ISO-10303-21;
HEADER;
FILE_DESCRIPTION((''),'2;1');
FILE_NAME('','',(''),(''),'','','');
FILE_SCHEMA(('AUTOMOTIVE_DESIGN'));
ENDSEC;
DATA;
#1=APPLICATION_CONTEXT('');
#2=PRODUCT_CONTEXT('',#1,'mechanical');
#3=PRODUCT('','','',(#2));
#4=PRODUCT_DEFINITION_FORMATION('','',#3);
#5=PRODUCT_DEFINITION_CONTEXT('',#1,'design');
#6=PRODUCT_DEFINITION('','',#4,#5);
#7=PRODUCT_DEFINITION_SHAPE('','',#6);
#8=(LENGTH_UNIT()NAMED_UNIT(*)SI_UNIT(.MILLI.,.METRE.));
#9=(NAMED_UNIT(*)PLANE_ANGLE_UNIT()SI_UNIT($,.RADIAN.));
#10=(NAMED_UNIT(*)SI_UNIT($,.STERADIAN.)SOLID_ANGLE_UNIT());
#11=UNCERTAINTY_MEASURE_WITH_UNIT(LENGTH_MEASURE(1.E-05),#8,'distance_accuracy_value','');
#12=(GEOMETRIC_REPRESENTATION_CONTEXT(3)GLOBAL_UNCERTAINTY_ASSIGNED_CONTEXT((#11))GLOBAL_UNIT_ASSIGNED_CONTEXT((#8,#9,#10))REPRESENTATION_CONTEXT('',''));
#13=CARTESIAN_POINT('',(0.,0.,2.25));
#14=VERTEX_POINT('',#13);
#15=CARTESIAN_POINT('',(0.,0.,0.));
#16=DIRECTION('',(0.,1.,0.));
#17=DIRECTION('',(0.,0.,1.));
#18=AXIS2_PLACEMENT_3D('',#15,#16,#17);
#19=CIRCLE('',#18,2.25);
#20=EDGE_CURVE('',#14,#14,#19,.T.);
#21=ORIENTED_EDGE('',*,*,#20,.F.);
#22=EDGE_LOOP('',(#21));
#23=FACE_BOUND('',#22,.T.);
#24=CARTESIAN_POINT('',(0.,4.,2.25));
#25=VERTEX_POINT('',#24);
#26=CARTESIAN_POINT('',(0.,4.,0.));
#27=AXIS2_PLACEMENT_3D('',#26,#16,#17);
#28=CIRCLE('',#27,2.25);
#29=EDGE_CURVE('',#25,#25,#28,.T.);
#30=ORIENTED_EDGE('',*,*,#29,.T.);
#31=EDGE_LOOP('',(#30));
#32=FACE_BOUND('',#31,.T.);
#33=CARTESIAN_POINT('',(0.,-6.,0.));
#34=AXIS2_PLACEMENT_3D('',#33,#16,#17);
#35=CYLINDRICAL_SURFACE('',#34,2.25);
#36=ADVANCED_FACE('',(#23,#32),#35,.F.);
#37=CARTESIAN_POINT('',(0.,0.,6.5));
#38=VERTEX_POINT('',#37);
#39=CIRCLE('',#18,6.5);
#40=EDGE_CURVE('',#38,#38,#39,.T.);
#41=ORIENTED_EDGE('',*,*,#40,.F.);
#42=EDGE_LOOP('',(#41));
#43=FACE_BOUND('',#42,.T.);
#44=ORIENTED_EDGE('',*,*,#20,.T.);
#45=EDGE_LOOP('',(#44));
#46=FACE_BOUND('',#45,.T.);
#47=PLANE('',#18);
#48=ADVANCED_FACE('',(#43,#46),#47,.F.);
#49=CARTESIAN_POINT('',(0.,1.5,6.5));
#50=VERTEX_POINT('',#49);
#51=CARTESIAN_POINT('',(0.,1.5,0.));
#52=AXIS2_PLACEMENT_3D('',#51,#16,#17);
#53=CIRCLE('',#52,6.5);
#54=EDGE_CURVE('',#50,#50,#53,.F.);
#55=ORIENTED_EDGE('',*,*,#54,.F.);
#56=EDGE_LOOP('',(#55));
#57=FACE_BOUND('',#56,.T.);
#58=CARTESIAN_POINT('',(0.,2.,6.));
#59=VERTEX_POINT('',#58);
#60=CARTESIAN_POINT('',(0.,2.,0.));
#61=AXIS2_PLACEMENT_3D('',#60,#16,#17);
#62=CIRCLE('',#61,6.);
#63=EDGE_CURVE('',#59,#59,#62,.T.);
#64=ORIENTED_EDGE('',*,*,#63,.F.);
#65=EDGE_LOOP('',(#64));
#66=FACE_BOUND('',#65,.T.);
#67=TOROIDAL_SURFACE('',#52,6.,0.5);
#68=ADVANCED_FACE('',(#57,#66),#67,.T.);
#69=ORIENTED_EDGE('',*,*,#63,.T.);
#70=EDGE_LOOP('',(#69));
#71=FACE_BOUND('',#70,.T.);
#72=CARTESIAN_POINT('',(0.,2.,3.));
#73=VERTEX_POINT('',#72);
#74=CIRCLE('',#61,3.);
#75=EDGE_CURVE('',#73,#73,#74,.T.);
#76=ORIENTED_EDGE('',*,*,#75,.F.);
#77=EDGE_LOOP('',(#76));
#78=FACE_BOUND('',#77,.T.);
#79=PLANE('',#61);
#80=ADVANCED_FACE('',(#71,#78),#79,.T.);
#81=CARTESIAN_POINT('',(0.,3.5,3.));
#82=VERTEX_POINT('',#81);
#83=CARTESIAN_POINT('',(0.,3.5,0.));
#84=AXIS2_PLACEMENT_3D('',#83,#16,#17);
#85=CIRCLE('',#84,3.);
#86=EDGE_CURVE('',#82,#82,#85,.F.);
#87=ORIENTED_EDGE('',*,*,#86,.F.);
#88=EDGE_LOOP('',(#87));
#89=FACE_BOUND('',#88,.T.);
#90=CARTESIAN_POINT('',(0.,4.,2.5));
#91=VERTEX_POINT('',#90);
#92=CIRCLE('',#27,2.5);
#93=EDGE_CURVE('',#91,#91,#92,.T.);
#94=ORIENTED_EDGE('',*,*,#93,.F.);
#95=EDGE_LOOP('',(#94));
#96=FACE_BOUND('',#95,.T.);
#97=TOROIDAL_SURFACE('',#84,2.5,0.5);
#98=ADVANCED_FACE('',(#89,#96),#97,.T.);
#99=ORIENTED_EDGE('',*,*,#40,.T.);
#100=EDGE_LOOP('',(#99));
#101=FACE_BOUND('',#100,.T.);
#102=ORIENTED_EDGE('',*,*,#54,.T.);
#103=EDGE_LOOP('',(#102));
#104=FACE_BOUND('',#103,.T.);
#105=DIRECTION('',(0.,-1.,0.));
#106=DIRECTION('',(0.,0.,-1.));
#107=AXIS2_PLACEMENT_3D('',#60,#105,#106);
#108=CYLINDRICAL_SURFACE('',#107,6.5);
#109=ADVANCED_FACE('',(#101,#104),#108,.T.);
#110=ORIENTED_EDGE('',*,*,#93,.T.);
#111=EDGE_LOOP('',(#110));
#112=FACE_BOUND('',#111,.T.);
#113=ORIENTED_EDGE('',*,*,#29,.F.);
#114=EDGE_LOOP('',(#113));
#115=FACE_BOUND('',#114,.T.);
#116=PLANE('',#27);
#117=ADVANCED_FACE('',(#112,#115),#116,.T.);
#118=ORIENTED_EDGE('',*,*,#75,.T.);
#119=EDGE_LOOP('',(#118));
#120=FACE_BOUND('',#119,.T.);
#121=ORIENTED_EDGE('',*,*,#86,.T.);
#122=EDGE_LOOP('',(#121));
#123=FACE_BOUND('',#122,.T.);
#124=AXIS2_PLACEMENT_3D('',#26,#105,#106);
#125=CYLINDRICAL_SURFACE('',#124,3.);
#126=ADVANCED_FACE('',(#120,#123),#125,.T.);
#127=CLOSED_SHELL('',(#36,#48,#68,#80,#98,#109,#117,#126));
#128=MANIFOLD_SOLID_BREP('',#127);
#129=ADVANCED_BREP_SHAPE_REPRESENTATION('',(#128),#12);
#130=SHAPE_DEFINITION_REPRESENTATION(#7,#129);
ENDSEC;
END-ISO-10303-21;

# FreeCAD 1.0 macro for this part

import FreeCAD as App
import Part
import Sketcher


def edges_at(feature, points):
    """Names of the edges that pass closest to the given points."""
    edges = feature.Shape.Edges
    near = lambda p: min(range(len(edges)), key=lambda i: edges[i].distToShape(Part.Vertex(*p))[0])
    return sorted({f"Edge{near(p) + 1}" for p in points})

doc = App.newDocument("Part")
body = doc.addObject("PartDesign::Body", "Body")

# Sketch on XZ plane
sketch1 = body.newObject("Sketcher::SketchObject", "Sketch")
sketch1.AttachmentSupport = (doc.getObject("XZ_Plane"), [""])
sketch1.MapMode = "FlatFace"
sketch1.addGeometry(Part.Circle(App.Vector(0, 0, 0), App.Vector(0, 0, 1), 6), False)
sketch1.addConstraint([
    Sketcher.Constraint("Coincident", 0, 3, -1, 1),
    Sketcher.Constraint("Diameter", 0, 13.0),
])
pad1 = body.newObject("PartDesign::Pad", "Pad")
pad1.Profile = sketch1
pad1.Length = 2
pad1.Reversed = True

# Sketch on XZ plane
sketch2 = body.newObject("Sketcher::SketchObject", "Sketch001")
sketch2.AttachmentSupport = (doc.getObject("XZ_Plane"), [""])
sketch2.MapMode = "FlatFace"
sketch2.AttachmentOffset = App.Placement(App.Vector(0, 0, -2), App.Rotation())
sketch2.addGeometry(Part.Circle(App.Vector(0, 0, 0), App.Vector(0, 0, 1), 3), False)
sketch2.addConstraint([
    Sketcher.Constraint("Coincident", 0, 3, -1, 1),
    Sketcher.Constraint("Diameter", 0, 6.0),
])
pad2 = body.newObject("PartDesign::Pad", "Pad001")
pad2.Profile = sketch2
pad2.Length = 2
pad2.Reversed = True

# Sketch on XZ plane
sketch3 = body.newObject("Sketcher::SketchObject", "Sketch002")
sketch3.AttachmentSupport = (doc.getObject("XZ_Plane"), [""])
sketch3.MapMode = "FlatFace"
sketch3.AttachmentOffset = App.Placement(App.Vector(0, 0, -4), App.Rotation())
sketch3.addGeometry(Part.Circle(App.Vector(0, 0, 0), App.Vector(0, 0, 1), 2.2), False)
sketch3.addConstraint([
    Sketcher.Constraint("Coincident", 0, 3, -1, 1),
    Sketcher.Constraint("Diameter", 0, 4.5),
])
pocket1 = body.newObject("PartDesign::Pocket", "Pocket")
pocket1.Profile = sketch3
pocket1.Length = 10
pocket1.Reversed = True
doc.recompute()

fillet = body.newObject("PartDesign::Fillet", "Fillet")
fillet.Base = (pocket1, edges_at(pocket1, [(0, 4, -3)]))
fillet.Radius = 0.5
doc.recompute()

fillet2 = body.newObject("PartDesign::Fillet", "Fillet001")
fillet2.Base = (fillet, edges_at(fillet, [(0, 2, -6.5)]))
fillet2.Radius = 0.5

doc.recompute()
